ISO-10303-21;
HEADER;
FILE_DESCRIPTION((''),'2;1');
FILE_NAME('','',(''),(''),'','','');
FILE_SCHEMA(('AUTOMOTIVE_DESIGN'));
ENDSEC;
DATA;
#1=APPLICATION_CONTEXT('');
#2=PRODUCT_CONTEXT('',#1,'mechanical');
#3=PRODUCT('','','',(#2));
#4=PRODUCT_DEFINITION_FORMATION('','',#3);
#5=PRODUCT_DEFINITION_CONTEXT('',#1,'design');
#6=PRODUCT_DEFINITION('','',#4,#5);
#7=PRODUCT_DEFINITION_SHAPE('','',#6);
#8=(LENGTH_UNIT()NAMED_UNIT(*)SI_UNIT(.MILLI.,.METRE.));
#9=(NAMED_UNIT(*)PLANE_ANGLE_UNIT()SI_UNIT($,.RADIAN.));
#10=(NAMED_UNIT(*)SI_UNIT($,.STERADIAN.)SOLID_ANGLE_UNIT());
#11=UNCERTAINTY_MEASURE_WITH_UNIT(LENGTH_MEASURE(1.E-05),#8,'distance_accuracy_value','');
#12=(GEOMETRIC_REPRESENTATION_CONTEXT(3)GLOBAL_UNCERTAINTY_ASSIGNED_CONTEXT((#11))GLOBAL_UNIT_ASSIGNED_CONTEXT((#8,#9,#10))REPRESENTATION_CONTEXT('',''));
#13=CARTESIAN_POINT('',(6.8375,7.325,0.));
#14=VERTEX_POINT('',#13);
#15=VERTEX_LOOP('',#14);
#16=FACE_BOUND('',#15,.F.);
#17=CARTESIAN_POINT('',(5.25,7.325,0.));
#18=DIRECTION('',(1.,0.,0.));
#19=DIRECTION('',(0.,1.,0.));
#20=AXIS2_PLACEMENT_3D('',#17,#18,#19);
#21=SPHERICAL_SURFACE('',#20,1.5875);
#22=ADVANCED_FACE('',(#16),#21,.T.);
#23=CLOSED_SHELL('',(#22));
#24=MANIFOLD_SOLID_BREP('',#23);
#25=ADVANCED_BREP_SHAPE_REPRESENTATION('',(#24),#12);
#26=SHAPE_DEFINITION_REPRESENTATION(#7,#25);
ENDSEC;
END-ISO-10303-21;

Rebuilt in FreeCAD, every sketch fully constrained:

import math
import FreeCAD as App
import Part
import Sketcher
from FreeCAD import Vector
Q = App.Units.Quantity

doc = App.newDocument("Part")
body = doc.addObject("PartDesign::Body", "Body")

# Sketch on XY plane
sketch1 = body.newObject("Sketcher::SketchObject", "Sketch")
sketch1.AttachmentSupport = (doc.getObject("XY_Plane"), [""])
sketch1.MapMode = "FlatFace"
sketch1.addGeometry(Part.LineSegment(Vector(3.7, 7.3, 0), Vector(6.8, 7.3, 0)), False)
sketch1.addGeometry(Part.ArcOfCircle(Part.Circle(Vector(5.2, 7.3, 0), Vector(0, 0, 1), 1.6), math.radians(0), math.radians(180)), False)
sketch1.addGeometry(Part.LineSegment(Vector(6.8, 7.3, 0), Vector(3.7, 7.3, 0)), True)  # axis
sketch1.addConstraint(Sketcher.Constraint("Coincident", 0, 1, 1, 2))
sketch1.addConstraint(Sketcher.Constraint("Coincident", 1, 1, 0, 2))
sketch1.addConstraint(Sketcher.Constraint("Horizontal", 0))
sketch1.addConstraint(Sketcher.Constraint("Horizontal", 2))
sketch1.addConstraint(Sketcher.Constraint("Coincident", 2, 1, 1, 1))
sketch1.addConstraint(Sketcher.Constraint("Horizontal", 1, 3, 0, 1))
sketch1.addConstraint(Sketcher.Constraint("Equal", 0, 2))
sketch1.addConstraint(Sketcher.Constraint("Radius", 1, Q("0.0625 in")))
sketch1.addConstraint(Sketcher.Constraint("DistanceX", -1, 1, 1, 3, Q("5.25 mm")))
sketch1.addConstraint(Sketcher.Constraint("DistanceY", -1, 1, 1, 3, Q("7.325 mm")))
revolution = body.newObject("PartDesign::Revolution", "Revolution")
revolution.Profile = sketch1
revolution.ReferenceAxis = (sketch1, ["Axis0"])
revolution.Angle = 360

doc.recompute()
